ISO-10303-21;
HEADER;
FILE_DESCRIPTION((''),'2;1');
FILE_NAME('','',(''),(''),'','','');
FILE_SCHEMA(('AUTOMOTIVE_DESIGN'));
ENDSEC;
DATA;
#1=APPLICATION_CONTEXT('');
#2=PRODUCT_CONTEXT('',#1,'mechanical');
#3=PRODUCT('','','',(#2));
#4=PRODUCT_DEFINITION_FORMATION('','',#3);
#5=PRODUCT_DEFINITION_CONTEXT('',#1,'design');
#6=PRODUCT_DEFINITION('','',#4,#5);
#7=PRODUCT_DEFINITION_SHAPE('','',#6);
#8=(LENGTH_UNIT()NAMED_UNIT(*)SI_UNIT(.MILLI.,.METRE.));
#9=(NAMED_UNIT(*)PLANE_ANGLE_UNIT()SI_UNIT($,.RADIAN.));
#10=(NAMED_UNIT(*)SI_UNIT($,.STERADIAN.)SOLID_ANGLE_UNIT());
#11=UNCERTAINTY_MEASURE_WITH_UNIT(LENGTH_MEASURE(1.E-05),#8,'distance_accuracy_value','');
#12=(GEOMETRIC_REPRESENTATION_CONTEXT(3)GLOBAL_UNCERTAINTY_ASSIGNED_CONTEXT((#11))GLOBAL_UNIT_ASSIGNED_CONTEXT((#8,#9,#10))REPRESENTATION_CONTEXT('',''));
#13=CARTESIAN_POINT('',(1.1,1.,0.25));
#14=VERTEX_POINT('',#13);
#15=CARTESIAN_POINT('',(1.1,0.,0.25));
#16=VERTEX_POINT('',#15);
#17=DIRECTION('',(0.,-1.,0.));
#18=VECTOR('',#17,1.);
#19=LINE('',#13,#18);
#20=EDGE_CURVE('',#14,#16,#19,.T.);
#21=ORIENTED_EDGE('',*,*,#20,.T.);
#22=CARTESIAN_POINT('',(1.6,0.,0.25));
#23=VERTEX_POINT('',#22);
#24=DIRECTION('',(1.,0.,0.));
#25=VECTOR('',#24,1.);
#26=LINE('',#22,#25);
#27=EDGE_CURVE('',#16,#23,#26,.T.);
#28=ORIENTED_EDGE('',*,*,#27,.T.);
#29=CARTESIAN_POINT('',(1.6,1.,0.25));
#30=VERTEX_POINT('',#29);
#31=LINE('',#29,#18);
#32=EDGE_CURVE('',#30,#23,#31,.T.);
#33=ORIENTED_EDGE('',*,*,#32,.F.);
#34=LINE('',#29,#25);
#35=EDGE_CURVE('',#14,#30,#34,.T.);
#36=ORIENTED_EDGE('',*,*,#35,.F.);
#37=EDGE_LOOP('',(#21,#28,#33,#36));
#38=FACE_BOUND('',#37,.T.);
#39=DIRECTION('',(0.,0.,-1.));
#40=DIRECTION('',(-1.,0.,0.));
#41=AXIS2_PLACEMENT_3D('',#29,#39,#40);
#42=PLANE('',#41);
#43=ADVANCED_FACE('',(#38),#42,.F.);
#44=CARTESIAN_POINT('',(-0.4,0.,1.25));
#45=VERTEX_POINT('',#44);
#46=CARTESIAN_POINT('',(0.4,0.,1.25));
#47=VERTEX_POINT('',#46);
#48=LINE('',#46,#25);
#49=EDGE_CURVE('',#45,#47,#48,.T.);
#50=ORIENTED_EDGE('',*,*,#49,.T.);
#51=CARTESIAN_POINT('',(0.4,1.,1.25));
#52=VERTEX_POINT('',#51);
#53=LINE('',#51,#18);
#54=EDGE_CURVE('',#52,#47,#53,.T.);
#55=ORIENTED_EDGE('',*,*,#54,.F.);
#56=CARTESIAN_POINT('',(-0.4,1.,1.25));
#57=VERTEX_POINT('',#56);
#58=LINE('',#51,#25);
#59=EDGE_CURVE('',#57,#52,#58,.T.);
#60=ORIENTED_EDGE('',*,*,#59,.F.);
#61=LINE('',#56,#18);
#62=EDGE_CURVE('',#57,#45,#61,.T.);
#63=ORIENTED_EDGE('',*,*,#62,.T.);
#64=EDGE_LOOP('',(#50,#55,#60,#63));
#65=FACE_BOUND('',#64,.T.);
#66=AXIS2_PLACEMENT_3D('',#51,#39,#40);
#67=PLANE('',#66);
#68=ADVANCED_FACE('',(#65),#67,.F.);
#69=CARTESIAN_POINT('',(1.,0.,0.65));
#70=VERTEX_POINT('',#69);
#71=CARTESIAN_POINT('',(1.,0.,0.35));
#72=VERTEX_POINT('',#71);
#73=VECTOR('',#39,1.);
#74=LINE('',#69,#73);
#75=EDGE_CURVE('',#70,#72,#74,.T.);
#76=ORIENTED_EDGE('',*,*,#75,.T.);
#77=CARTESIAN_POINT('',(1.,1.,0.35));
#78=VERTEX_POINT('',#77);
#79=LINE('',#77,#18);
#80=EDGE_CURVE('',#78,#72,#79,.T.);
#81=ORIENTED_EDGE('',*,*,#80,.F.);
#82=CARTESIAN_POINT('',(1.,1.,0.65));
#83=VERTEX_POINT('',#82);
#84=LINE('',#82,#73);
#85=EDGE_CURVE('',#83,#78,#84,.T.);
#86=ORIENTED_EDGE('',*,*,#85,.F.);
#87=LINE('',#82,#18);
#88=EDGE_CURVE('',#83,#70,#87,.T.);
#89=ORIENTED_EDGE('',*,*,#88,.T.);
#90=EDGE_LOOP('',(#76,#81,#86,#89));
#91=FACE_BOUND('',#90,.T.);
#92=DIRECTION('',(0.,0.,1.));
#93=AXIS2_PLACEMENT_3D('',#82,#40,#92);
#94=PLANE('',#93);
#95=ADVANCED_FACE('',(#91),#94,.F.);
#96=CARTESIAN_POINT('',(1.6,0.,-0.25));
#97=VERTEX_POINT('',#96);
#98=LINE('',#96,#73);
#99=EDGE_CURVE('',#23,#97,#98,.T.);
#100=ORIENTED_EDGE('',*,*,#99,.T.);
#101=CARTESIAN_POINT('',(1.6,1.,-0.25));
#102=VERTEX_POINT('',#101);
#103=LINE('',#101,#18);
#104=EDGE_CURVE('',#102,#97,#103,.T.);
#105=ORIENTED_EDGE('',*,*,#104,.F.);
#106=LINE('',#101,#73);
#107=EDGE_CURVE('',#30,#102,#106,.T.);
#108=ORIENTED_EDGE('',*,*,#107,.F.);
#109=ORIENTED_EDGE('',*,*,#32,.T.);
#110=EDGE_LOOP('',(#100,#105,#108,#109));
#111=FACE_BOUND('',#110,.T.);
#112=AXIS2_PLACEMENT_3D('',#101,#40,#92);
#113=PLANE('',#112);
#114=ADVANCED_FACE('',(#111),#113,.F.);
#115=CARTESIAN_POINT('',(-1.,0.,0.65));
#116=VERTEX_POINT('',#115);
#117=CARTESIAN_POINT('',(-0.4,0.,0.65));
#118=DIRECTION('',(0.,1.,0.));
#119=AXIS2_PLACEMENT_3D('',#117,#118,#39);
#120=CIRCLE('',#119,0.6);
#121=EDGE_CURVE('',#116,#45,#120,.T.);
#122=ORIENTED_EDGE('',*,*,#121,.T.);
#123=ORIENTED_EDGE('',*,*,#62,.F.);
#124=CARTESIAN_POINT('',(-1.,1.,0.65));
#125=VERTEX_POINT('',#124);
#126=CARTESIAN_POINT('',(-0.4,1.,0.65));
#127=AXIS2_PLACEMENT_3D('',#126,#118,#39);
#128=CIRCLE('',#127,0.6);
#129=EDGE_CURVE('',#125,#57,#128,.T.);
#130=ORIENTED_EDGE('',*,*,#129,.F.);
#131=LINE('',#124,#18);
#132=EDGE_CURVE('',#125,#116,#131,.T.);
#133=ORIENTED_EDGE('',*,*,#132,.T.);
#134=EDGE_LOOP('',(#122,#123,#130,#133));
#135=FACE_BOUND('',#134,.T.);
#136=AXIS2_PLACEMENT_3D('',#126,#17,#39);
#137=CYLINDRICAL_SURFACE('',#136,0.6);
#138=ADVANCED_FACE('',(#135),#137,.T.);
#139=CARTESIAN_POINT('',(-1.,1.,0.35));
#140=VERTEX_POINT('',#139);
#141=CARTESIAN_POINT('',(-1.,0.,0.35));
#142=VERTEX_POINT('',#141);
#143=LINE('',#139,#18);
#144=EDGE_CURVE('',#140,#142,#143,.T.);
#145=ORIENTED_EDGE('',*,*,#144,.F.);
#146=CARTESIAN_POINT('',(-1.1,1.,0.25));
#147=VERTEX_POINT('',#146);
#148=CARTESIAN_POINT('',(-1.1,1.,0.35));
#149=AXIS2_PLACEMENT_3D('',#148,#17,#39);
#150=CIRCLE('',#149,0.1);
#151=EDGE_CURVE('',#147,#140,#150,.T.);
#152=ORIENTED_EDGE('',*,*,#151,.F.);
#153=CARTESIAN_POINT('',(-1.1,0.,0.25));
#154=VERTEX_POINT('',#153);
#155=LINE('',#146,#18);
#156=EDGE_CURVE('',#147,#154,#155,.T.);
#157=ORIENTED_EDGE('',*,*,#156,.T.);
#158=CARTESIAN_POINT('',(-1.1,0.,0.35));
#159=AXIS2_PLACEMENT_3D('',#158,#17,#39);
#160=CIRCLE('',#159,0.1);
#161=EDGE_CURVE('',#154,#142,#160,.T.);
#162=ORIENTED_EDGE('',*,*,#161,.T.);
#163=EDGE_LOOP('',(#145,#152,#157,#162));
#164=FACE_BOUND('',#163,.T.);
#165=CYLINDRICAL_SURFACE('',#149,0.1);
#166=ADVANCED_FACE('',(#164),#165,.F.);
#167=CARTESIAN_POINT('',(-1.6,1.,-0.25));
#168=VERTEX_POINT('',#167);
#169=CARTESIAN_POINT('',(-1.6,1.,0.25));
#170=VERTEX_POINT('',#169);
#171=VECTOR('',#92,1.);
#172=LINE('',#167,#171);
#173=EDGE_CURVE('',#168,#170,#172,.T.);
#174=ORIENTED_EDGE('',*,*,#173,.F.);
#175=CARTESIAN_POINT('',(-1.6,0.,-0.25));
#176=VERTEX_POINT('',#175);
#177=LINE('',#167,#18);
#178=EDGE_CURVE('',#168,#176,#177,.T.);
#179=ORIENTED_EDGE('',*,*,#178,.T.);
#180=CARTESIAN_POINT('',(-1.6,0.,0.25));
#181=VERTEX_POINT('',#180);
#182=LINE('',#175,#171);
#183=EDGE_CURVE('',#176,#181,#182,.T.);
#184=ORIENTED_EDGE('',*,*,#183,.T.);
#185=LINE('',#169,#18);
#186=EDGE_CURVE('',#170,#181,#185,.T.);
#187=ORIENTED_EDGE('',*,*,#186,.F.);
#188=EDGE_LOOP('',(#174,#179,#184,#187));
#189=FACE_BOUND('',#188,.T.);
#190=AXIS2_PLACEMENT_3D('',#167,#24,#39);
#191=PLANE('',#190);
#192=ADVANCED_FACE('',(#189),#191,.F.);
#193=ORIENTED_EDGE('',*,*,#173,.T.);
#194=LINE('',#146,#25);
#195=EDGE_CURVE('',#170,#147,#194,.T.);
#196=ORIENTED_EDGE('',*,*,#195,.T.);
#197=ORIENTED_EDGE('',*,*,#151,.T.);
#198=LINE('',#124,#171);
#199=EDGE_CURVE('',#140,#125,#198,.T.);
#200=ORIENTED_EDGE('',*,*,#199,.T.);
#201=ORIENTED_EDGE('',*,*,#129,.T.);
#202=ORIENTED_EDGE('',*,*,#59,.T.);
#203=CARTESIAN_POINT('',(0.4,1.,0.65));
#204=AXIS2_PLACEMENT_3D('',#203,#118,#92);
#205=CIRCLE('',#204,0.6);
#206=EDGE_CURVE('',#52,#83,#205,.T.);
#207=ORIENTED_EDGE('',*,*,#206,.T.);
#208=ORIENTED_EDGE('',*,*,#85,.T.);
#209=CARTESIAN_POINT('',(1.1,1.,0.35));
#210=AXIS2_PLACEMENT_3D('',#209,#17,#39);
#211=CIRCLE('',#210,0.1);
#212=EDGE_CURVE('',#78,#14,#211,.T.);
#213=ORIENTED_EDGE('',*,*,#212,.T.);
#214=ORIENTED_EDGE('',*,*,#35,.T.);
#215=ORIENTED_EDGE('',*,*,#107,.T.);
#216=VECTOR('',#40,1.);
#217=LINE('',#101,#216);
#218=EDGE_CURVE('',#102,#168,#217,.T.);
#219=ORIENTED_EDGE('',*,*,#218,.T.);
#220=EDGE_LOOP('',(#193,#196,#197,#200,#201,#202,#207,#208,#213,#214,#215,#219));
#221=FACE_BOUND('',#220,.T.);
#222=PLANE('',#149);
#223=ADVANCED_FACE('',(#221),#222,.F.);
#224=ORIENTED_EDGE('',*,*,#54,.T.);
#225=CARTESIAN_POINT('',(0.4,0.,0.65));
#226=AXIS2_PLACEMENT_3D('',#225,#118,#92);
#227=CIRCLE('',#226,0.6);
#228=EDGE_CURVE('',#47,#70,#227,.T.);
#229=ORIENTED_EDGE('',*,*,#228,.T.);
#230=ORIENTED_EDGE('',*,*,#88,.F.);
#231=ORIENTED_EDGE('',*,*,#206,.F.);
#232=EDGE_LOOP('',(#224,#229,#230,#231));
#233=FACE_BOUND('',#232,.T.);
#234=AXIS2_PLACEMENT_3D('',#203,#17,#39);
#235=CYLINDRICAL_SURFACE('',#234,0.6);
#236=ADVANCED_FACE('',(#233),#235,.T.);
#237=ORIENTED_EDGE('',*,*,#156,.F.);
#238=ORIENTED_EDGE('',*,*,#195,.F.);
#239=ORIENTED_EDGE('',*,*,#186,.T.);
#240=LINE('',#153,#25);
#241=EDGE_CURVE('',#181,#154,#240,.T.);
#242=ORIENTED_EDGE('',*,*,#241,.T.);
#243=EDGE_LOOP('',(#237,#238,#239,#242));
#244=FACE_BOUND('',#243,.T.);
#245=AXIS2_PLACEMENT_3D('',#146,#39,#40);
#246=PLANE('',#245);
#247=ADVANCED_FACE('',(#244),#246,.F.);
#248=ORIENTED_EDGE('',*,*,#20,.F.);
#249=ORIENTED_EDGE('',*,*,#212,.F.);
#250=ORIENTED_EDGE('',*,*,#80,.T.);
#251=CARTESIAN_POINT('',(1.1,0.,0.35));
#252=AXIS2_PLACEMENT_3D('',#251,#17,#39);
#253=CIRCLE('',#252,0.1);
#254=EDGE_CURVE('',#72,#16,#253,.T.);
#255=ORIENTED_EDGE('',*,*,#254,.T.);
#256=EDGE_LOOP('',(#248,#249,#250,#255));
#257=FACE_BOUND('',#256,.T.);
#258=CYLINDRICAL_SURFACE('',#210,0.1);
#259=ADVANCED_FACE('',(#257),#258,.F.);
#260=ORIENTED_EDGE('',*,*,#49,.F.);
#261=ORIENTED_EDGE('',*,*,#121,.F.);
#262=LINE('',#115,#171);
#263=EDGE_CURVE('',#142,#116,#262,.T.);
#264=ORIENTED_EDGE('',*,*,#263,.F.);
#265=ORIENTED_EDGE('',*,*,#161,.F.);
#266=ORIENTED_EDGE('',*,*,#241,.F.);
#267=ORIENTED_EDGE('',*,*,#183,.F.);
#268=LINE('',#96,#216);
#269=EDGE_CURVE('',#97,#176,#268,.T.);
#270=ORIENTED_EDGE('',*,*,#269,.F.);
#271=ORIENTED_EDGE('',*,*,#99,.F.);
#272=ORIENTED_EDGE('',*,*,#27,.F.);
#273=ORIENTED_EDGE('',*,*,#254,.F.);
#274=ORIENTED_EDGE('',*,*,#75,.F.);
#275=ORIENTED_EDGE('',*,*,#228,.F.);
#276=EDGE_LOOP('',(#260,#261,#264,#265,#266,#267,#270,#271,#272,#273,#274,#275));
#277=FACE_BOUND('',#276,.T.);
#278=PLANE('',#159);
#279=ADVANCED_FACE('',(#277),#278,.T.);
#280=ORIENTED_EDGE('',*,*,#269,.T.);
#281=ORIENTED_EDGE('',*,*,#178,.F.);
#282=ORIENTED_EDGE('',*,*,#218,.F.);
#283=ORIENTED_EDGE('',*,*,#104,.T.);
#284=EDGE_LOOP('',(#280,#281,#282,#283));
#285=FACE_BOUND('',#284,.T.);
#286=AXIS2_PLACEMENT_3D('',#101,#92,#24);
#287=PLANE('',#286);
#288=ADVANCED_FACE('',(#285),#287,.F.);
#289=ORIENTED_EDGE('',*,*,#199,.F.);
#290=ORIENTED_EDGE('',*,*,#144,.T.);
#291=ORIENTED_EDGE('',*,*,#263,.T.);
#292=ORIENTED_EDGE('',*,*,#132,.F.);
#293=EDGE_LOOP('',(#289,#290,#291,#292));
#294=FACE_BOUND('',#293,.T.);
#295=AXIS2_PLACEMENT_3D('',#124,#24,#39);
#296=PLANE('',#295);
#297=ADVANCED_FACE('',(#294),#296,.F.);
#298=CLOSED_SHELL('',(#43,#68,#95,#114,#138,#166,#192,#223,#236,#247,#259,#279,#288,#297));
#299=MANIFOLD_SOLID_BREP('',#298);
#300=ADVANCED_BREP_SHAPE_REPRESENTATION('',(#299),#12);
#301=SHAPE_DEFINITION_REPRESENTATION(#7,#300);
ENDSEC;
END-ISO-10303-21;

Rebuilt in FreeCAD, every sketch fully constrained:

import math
import FreeCAD as App
import Part
import Sketcher

V = App.Vector
Q = App.Units.Quantity

doc = App.newDocument("Part")
body = doc.addObject("PartDesign::Body", "Body")

# Sketch on XZ plane
sketch1 = doc.addObject("Sketcher::SketchObject", "Sketch")
body.addObject(sketch1)
sketch1.AttachmentSupport = (doc.XZ_Plane, [""])
sketch1.MapMode = "FlatFace"
sketch1.addGeometry(Part.LineSegment(V(-1.6, 0.25, 0), V(-1.1, 0.25, 0)), False)
sketch1.addGeometry(Part.ArcOfCircle(Part.Circle(V(-1.1, 0.35, 0), V(0, 0, 1), 0.1), math.radians(-90), math.radians(0)), False)
sketch1.addGeometry(Part.LineSegment(V(-1, 0.35, 0), V(-1, 0.65, 0)), False)
sketch1.addGeometry(Part.ArcOfCircle(Part.Circle(V(-0.4, 0.65, 0), V(0, 0, 1), 0.6), math.radians(90), math.radians(180)), False)
sketch1.addGeometry(Part.LineSegment(V(-0.4, 1.25, 0), V(0.4, 1.25, 0)), False)
sketch1.addGeometry(Part.ArcOfCircle(Part.Circle(V(0.4, 0.65, 0), V(0, 0, 1), 0.6), math.radians(0), math.radians(90)), False)
sketch1.addGeometry(Part.LineSegment(V(1, 0.65, 0), V(1, 0.35, 0)), False)
sketch1.addGeometry(Part.ArcOfCircle(Part.Circle(V(1.1, 0.35, 0), V(0, 0, 1), 0.1), math.radians(180), math.radians(270)), False)
sketch1.addGeometry(Part.LineSegment(V(1.1, 0.25, 0), V(1.6, 0.25, 0)), False)
sketch1.addGeometry(Part.LineSegment(V(1.6, 0.25, 0), V(1.6, -0.25, 0)), False)
sketch1.addGeometry(Part.LineSegment(V(1.6, -0.25, 0), V(-1.6, -0.25, 0)), False)
sketch1.addGeometry(Part.LineSegment(V(-1.6, -0.25, 0), V(-1.6, 0.25, 0)), False)
sketch1.addConstraint(Sketcher.Constraint("Tangent", 0, 2, 1, 1))
sketch1.addConstraint(Sketcher.Constraint("Tangent", 1, 2, 2, 1))
sketch1.addConstraint(Sketcher.Constraint("Tangent", 2, 2, 3, 2))
sketch1.addConstraint(Sketcher.Constraint("Tangent", 3, 1, 4, 1))
sketch1.addConstraint(Sketcher.Constraint("Tangent", 4, 2, 5, 2))
sketch1.addConstraint(Sketcher.Constraint("Tangent", 5, 1, 6, 1))
sketch1.addConstraint(Sketcher.Constraint("Tangent", 6, 2, 7, 1))
sketch1.addConstraint(Sketcher.Constraint("Tangent", 7, 2, 8, 1))
sketch1.addConstraint(Sketcher.Constraint("Coincident", 8, 2, 9, 1))
sketch1.addConstraint(Sketcher.Constraint("Coincident", 9, 2, 10, 1))
sketch1.addConstraint(Sketcher.Constraint("Coincident", 10, 2, 11, 1))
sketch1.addConstraint(Sketcher.Constraint("Coincident", 11, 2, 0, 1))
sketch1.addConstraint(Sketcher.Constraint("Horizontal", 0))
sketch1.addConstraint(Sketcher.Constraint("Vertical", 2))
sketch1.addConstraint(Sketcher.Constraint("Horizontal", 4))
sketch1.addConstraint(Sketcher.Constraint("Vertical", 6))
sketch1.addConstraint(Sketcher.Constraint("Horizontal", 8))
sketch1.addConstraint(Sketcher.Constraint("Vertical", 9))
sketch1.addConstraint(Sketcher.Constraint("Horizontal", 10))
sketch1.addConstraint(Sketcher.Constraint("Vertical", 11))
sketch1.addConstraint(Sketcher.Constraint("Equal", 3, 5))
sketch1.addConstraint(Sketcher.Constraint("Equal", 1, 7))
sketch1.addConstraint(Sketcher.Constraint("Symmetric", 8, 2, 10, 2, -1, 1))
sketch1.addConstraint(Sketcher.Constraint("Symmetric", 1, 3, 7, 3, -2))
sketch1.addConstraint(Sketcher.Constraint("Equal", 8, 9))
sketch1.addConstraint(Sketcher.Constraint("Radius", 1, Q("0.1 mm")))
sketch1.addConstraint(Sketcher.Constraint("Radius", 3, Q("0.6 mm")))
sketch1.addConstraint(Sketcher.Constraint("DistanceX", 0, 1, 0, 2, Q("0.5 mm")))
sketch1.addConstraint(Sketcher.Constraint("DistanceX", 4, 1, 4, 2, Q("0.8 mm")))
sketch1.addConstraint(Sketcher.Constraint("DistanceY", 2, 1, 2, 2, Q("0.3 mm")))
pad1 = doc.addObject("PartDesign::Pad", "Pad")
body.addObject(pad1)
pad1.Profile = sketch1
pad1.Length = 1
pad1.Reversed = True

doc.recompute()
